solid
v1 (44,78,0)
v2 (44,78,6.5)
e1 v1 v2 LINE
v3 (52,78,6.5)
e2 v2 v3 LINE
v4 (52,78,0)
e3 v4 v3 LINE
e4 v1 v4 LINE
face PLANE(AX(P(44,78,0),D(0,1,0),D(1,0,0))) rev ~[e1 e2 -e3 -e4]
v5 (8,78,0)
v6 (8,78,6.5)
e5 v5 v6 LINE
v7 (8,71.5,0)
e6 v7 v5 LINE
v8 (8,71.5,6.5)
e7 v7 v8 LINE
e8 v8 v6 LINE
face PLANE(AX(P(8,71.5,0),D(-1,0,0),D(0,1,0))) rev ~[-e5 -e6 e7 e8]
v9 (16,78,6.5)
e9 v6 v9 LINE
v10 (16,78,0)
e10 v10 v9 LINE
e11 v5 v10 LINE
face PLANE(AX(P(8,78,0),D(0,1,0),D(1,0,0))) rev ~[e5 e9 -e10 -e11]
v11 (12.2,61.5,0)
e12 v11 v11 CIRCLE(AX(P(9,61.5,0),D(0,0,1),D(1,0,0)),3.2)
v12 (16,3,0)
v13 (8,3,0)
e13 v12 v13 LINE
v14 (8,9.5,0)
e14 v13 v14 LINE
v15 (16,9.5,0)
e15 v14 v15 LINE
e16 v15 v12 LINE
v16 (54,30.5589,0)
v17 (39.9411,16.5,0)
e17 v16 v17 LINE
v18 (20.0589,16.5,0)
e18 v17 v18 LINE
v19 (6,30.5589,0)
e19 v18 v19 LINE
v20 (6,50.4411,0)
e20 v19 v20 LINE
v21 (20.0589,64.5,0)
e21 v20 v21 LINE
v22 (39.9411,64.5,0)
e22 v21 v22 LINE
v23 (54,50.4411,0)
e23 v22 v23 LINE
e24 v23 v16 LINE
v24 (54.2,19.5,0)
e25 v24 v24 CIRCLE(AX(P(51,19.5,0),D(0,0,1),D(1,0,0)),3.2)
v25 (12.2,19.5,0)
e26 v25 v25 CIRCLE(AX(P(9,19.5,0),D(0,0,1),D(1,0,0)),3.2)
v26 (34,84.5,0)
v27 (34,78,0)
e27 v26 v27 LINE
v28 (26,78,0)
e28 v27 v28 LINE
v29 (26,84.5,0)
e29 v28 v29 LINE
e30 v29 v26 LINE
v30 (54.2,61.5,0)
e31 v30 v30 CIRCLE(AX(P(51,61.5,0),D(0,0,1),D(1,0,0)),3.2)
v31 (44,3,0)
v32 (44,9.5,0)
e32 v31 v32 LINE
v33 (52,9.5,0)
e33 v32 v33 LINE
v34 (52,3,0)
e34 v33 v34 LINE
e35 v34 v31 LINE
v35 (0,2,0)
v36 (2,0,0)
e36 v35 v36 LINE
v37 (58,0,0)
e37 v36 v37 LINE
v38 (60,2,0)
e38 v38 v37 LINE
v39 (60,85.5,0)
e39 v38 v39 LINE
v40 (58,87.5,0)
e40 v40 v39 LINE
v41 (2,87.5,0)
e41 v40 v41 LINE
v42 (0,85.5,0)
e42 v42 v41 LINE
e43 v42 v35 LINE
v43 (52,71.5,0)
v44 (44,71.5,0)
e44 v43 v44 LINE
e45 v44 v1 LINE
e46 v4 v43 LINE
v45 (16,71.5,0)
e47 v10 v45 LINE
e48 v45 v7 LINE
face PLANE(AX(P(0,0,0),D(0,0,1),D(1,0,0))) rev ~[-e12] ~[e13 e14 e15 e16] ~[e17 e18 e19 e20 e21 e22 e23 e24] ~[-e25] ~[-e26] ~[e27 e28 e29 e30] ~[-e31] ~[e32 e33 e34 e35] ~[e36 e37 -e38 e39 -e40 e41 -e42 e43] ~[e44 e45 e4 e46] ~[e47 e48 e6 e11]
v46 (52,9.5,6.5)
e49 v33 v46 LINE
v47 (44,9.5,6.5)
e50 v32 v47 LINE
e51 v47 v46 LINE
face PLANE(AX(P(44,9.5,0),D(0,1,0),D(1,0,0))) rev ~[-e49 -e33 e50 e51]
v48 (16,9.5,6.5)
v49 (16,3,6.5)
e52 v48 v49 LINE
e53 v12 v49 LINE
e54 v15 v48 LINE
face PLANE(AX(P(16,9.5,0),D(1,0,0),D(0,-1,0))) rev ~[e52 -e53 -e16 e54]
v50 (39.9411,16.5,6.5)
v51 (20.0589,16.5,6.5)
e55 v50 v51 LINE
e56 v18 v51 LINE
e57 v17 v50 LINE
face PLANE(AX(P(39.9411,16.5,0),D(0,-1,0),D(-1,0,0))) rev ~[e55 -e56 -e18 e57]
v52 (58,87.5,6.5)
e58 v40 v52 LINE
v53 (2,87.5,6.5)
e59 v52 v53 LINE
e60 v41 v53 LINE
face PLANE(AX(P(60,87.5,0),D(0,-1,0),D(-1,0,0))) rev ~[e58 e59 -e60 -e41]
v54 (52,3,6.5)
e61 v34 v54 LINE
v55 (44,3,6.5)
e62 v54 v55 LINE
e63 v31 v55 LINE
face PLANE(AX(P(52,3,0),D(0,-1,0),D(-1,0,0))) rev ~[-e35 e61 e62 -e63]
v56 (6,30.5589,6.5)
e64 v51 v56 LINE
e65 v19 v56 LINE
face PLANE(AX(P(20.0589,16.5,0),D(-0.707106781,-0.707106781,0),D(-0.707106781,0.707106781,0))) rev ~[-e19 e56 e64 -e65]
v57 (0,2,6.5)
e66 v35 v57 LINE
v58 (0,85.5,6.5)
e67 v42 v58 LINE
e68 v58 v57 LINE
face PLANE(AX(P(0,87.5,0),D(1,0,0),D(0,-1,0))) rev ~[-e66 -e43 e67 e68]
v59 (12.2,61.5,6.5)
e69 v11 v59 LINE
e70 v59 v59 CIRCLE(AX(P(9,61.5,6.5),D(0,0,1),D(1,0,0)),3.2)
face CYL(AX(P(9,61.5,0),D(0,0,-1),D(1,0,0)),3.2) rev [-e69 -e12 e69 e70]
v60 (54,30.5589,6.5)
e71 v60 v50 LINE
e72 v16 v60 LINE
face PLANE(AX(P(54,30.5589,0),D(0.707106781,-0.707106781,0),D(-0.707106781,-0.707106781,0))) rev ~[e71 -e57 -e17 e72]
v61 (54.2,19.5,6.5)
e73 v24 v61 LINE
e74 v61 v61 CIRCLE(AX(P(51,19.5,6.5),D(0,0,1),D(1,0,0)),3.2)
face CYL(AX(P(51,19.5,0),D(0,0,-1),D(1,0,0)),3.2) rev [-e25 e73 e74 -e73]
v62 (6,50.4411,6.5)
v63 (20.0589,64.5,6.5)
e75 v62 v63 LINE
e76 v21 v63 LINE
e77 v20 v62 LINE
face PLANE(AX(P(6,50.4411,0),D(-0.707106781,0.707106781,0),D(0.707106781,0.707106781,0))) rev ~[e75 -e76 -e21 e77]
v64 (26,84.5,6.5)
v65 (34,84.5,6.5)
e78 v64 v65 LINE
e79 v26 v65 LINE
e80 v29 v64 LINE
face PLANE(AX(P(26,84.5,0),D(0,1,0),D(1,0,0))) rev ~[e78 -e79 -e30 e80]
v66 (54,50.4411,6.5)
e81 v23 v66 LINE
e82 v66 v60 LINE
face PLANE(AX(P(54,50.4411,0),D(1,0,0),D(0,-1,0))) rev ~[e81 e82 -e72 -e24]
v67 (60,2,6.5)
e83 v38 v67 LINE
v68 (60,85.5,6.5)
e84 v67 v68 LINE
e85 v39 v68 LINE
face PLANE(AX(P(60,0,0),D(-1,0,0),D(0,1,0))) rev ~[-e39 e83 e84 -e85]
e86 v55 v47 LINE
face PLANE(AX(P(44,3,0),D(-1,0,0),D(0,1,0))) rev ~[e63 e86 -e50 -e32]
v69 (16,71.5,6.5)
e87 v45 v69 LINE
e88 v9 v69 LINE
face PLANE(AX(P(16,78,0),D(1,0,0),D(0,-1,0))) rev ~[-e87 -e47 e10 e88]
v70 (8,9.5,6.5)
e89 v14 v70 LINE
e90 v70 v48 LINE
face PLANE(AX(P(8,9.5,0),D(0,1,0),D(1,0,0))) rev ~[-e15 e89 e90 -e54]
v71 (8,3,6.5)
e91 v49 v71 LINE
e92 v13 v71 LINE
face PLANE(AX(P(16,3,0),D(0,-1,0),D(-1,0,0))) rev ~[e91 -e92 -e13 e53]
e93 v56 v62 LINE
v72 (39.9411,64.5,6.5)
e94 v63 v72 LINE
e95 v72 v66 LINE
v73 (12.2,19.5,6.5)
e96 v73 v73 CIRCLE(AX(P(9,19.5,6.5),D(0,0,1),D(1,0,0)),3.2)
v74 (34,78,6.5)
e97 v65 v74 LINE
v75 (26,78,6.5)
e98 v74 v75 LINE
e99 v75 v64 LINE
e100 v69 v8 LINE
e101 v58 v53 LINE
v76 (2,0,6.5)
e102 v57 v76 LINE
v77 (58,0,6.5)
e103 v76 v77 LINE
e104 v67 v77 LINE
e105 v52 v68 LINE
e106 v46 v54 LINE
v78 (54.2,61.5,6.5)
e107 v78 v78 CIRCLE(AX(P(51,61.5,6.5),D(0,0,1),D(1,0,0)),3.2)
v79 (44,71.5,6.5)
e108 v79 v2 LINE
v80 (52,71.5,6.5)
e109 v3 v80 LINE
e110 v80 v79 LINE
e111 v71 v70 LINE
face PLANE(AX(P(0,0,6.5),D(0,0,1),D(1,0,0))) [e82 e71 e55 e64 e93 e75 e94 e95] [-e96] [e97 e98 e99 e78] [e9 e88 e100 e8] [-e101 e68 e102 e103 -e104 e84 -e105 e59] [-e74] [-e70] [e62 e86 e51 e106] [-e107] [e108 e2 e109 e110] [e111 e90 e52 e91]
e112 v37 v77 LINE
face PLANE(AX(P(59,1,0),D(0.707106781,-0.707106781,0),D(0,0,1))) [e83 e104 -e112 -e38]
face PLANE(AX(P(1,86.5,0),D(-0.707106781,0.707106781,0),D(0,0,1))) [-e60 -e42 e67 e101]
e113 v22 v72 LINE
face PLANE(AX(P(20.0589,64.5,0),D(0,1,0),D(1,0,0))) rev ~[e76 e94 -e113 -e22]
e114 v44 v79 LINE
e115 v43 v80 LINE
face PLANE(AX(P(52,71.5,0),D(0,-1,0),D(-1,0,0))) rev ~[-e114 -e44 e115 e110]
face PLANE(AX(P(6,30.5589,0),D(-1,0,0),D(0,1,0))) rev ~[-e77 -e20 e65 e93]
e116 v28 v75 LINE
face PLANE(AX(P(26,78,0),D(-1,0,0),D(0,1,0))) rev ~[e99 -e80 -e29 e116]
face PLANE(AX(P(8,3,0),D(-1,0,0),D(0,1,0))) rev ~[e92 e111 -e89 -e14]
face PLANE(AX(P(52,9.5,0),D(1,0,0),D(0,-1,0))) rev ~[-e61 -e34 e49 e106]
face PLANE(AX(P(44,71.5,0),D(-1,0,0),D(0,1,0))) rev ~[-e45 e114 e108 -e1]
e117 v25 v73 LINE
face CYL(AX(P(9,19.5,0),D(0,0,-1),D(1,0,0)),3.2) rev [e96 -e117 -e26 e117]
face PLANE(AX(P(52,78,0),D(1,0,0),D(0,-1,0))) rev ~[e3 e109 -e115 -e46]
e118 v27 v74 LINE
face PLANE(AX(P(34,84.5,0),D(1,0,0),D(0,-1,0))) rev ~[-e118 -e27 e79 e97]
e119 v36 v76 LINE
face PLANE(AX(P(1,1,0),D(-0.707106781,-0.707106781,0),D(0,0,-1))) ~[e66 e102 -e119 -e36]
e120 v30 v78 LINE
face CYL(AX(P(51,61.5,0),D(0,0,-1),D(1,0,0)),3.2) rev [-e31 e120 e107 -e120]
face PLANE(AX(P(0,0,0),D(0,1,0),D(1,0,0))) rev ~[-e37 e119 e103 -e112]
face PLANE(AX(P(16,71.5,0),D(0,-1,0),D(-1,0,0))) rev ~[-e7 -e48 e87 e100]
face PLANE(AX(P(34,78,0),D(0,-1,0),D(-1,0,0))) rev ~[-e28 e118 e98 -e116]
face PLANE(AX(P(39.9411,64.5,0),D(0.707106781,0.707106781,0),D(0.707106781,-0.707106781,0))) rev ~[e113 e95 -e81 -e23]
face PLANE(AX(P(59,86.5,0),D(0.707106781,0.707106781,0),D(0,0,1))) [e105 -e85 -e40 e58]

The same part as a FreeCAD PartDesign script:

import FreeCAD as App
import Part
import Sketcher


def edges_at(feature, points):
    """Names of the edges that pass closest to the given points."""
    edges = feature.Shape.Edges
    near = lambda p: min(range(len(edges)), key=lambda i: edges[i].distToShape(Part.Vertex(*p))[0])
    return sorted({f"Edge{near(p) + 1}" for p in points})

doc = App.newDocument("Part")
body = doc.addObject("PartDesign::Body", "Body")

sketch1 = body.newObject("Sketcher::SketchObject", "Sketch")
sketch1.AttachmentSupport = (doc.getObject("XY_Plane"), [""])
sketch1.MapMode = "FlatFace"
sketch1.addGeometry(Part.LineSegment(App.Vector(0, 87.5, 0), App.Vector(0, 0, 0)), False)
sketch1.addGeometry(Part.LineSegment(App.Vector(0, 0, 0), App.Vector(60, 0, 0)), False)
sketch1.addGeometry(Part.LineSegment(App.Vector(60, 0, 0), App.Vector(60, 87.5, 0)), False)
sketch1.addGeometry(Part.LineSegment(App.Vector(60, 87.5, 0), App.Vector(0, 87.5, 0)), False)
sketch1.addGeometry(Part.LineSegment(App.Vector(8, 3, 0), App.Vector(8, 9.5, 0)), False)
sketch1.addGeometry(Part.LineSegment(App.Vector(8, 9.5, 0), App.Vector(16, 9.5, 0)), False)
sketch1.addGeometry(Part.LineSegment(App.Vector(16, 9.5, 0), App.Vector(16, 3, 0)), False)
sketch1.addGeometry(Part.LineSegment(App.Vector(16, 3, 0), App.Vector(8, 3, 0)), False)
sketch1.addGeometry(Part.Circle(App.Vector(9, 19.5, 0), App.Vector(0, 0, 1), 3.2), False)
sketch1.addGeometry(Part.LineSegment(App.Vector(44, 3, 0), App.Vector(44, 9.5, 0)), False)
sketch1.addGeometry(Part.LineSegment(App.Vector(44, 9.5, 0), App.Vector(52, 9.5, 0)), False)
sketch1.addGeometry(Part.LineSegment(App.Vector(52, 9.5, 0), App.Vector(52, 3, 0)), False)
sketch1.addGeometry(Part.LineSegment(App.Vector(52, 3, 0), App.Vector(44, 3, 0)), False)
sketch1.addGeometry(Part.Circle(App.Vector(51, 19.5, 0), App.Vector(0, 0, 1), 3.2), False)
sketch1.addGeometry(Part.LineSegment(App.Vector(54, 50.4, 0), App.Vector(54, 30.6, 0)), False)
sketch1.addGeometry(Part.LineSegment(App.Vector(54, 30.6, 0), App.Vector(39.9, 16.5, 0)), False)
sketch1.addGeometry(Part.LineSegment(App.Vector(39.9, 16.5, 0), App.Vector(20.1, 16.5, 0)), False)
sketch1.addGeometry(Part.LineSegment(App.Vector(20.1, 16.5, 0), App.Vector(6, 30.6, 0)), False)
sketch1.addGeometry(Part.LineSegment(App.Vector(6, 30.6, 0), App.Vector(6, 50.4, 0)), False)
sketch1.addGeometry(Part.LineSegment(App.Vector(6, 50.4, 0), App.Vector(20.1, 64.5, 0)), False)
sketch1.addGeometry(Part.LineSegment(App.Vector(20.1, 64.5, 0), App.Vector(39.9, 64.5, 0)), False)
sketch1.addGeometry(Part.LineSegment(App.Vector(39.9, 64.5, 0), App.Vector(54, 50.4, 0)), False)
sketch1.addGeometry(Part.Circle(App.Vector(9, 61.5, 0), App.Vector(0, 0, 1), 3.2), False)
sketch1.addGeometry(Part.LineSegment(App.Vector(8, 71.5, 0), App.Vector(8, 78, 0)), False)
sketch1.addGeometry(Part.LineSegment(App.Vector(8, 78, 0), App.Vector(16, 78, 0)), False)
sketch1.addGeometry(Part.LineSegment(App.Vector(16, 78, 0), App.Vector(16, 71.5, 0)), False)
sketch1.addGeometry(Part.LineSegment(App.Vector(16, 71.5, 0), App.Vector(8, 71.5, 0)), False)
sketch1.addGeometry(Part.Circle(App.Vector(51, 61.5, 0), App.Vector(0, 0, 1), 3.2), False)
sketch1.addGeometry(Part.LineSegment(App.Vector(26, 78, 0), App.Vector(26, 84.5, 0)), False)
sketch1.addGeometry(Part.LineSegment(App.Vector(26, 84.5, 0), App.Vector(34, 84.5, 0)), False)
sketch1.addGeometry(Part.LineSegment(App.Vector(34, 84.5, 0), App.Vector(34, 78, 0)), False)
sketch1.addGeometry(Part.LineSegment(App.Vector(34, 78, 0), App.Vector(26, 78, 0)), False)
sketch1.addGeometry(Part.LineSegment(App.Vector(44, 71.5, 0), App.Vector(44, 78, 0)), False)
sketch1.addGeometry(Part.LineSegment(App.Vector(44, 78, 0), App.Vector(52, 78, 0)), False)
sketch1.addGeometry(Part.LineSegment(App.Vector(52, 78, 0), App.Vector(52, 71.5, 0)), False)
sketch1.addGeometry(Part.LineSegment(App.Vector(52, 71.5, 0), App.Vector(44, 71.5, 0)), False)
sketch1.addConstraint(Sketcher.Constraint("Coincident", 0, 2, 1, 1))
sketch1.addConstraint(Sketcher.Constraint("Coincident", 1, 2, 2, 1))
sketch1.addConstraint(Sketcher.Constraint("Coincident", 2, 2, 3, 1))
sketch1.addConstraint(Sketcher.Constraint("Coincident", 3, 2, 0, 1))
sketch1.addConstraint(Sketcher.Constraint("Coincident", 4, 2, 5, 1))
sketch1.addConstraint(Sketcher.Constraint("Coincident", 5, 2, 6, 1))
sketch1.addConstraint(Sketcher.Constraint("Coincident", 6, 2, 7, 1))
sketch1.addConstraint(Sketcher.Constraint("Coincident", 7, 2, 4, 1))
sketch1.addConstraint(Sketcher.Constraint("Coincident", 9, 2, 10, 1))
sketch1.addConstraint(Sketcher.Constraint("Coincident", 10, 2, 11, 1))
sketch1.addConstraint(Sketcher.Constraint("Coincident", 11, 2, 12, 1))
sketch1.addConstraint(Sketcher.Constraint("Coincident", 12, 2, 9, 1))
sketch1.addConstraint(Sketcher.Constraint("Coincident", 14, 2, 15, 1))
sketch1.addConstraint(Sketcher.Constraint("Coincident", 15, 2, 16, 1))
sketch1.addConstraint(Sketcher.Constraint("Coincident", 16, 2, 17, 1))
sketch1.addConstraint(Sketcher.Constraint("Coincident", 17, 2, 18, 1))
sketch1.addConstraint(Sketcher.Constraint("Coincident", 18, 2, 19, 1))
sketch1.addConstraint(Sketcher.Constraint("Coincident", 19, 2, 20, 1))
sketch1.addConstraint(Sketcher.Constraint("Coincident", 20, 2, 21, 1))
sketch1.addConstraint(Sketcher.Constraint("Coincident", 21, 2, 14, 1))
sketch1.addConstraint(Sketcher.Constraint("Coincident", 23, 2, 24, 1))
sketch1.addConstraint(Sketcher.Constraint("Coincident", 24, 2, 25, 1))
sketch1.addConstraint(Sketcher.Constraint("Coincident", 25, 2, 26, 1))
sketch1.addConstraint(Sketcher.Constraint("Coincident", 26, 2, 23, 1))
sketch1.addConstraint(Sketcher.Constraint("Coincident", 28, 2, 29, 1))
sketch1.addConstraint(Sketcher.Constraint("Coincident", 29, 2, 30, 1))
sketch1.addConstraint(Sketcher.Constraint("Coincident", 30, 2, 31, 1))
sketch1.addConstraint(Sketcher.Constraint("Coincident", 31, 2, 28, 1))
sketch1.addConstraint(Sketcher.Constraint("Coincident", 32, 2, 33, 1))
sketch1.addConstraint(Sketcher.Constraint("Coincident", 33, 2, 34, 1))
sketch1.addConstraint(Sketcher.Constraint("Coincident", 34, 2, 35, 1))
sketch1.addConstraint(Sketcher.Constraint("Coincident", 35, 2, 32, 1))
sketch1.addConstraint(Sketcher.Constraint("Vertical", 0))
sketch1.addConstraint(Sketcher.Constraint("Horizontal", 1))
sketch1.addConstraint(Sketcher.Constraint("Vertical", 2))
sketch1.addConstraint(Sketcher.Constraint("Horizontal", 3))
sketch1.addConstraint(Sketcher.Constraint("Vertical", 4))
sketch1.addConstraint(Sketcher.Constraint("Horizontal", 5))
sketch1.addConstraint(Sketcher.Constraint("Vertical", 6))
sketch1.addConstraint(Sketcher.Constraint("Horizontal", 7))
sketch1.addConstraint(Sketcher.Constraint("Vertical", 9))
sketch1.addConstraint(Sketcher.Constraint("Horizontal", 10))
sketch1.addConstraint(Sketcher.Constraint("Vertical", 11))
sketch1.addConstraint(Sketcher.Constraint("Horizontal", 12))
sketch1.addConstraint(Sketcher.Constraint("Vertical", 14))
sketch1.addConstraint(Sketcher.Constraint("Horizontal", 16))
sketch1.addConstraint(Sketcher.Constraint("Vertical", 18))
sketch1.addConstraint(Sketcher.Constraint("Horizontal", 20))
sketch1.addConstraint(Sketcher.Constraint("Vertical", 23))
sketch1.addConstraint(Sketcher.Constraint("Horizontal", 24))
sketch1.addConstraint(Sketcher.Constraint("Vertical", 25))
sketch1.addConstraint(Sketcher.Constraint("Horizontal", 26))
sketch1.addConstraint(Sketcher.Constraint("Vertical", 28))
sketch1.addConstraint(Sketcher.Constraint("Horizontal", 29))
sketch1.addConstraint(Sketcher.Constraint("Vertical", 30))
sketch1.addConstraint(Sketcher.Constraint("Horizontal", 31))
sketch1.addConstraint(Sketcher.Constraint("Vertical", 32))
sketch1.addConstraint(Sketcher.Constraint("Horizontal", 33))
sketch1.addConstraint(Sketcher.Constraint("Vertical", 34))
sketch1.addConstraint(Sketcher.Constraint("Horizontal", 35))
sketch1.addConstraint(Sketcher.Constraint("Coincident", 0, 2, -1, 1))
sketch1.addConstraint(Sketcher.Constraint("Equal", 8, 13))
sketch1.addConstraint(Sketcher.Constraint("Equal", 13, 22))
sketch1.addConstraint(Sketcher.Constraint("Equal", 22, 27))
sketch1.addConstraint(Sketcher.Constraint("Perpendicular", 15, 17))
sketch1.addConstraint(Sketcher.Constraint("Perpendicular", 17, 19))
sketch1.addConstraint(Sketcher.Constraint("Perpendicular", 19, 21))
sketch1.addConstraint(Sketcher.Constraint("Horizontal", 8, 3, 13, 3))
sketch1.addConstraint(Sketcher.Constraint("Horizontal", 22, 3, 27, 3))
sketch1.addConstraint(Sketcher.Constraint("Horizontal", 5, 2, 9, 2))
sketch1.addConstraint(Sketcher.Constraint("Horizontal", 7, 2, 11, 2))
sketch1.addConstraint(Sketcher.Constraint("Horizontal", 14, 2, 17, 2))
sketch1.addConstraint(Sketcher.Constraint("Horizontal", 18, 2, 21, 2))
sketch1.addConstraint(Sketcher.Constraint("Horizontal", 24, 2, 30, 2))
sketch1.addConstraint(Sketcher.Constraint("Horizontal", 31, 2, 32, 2))
sketch1.addConstraint(Sketcher.Constraint("Horizontal", 26, 2, 34, 2))
sketch1.addConstraint(Sketcher.Constraint("Vertical", 8, 3, 22, 3))
sketch1.addConstraint(Sketcher.Constraint("Vertical", 13, 3, 27, 3))
sketch1.addConstraint(Sketcher.Constraint("Vertical", 16, 2, 19, 2))
sketch1.addConstraint(Sketcher.Constraint("Vertical", 15, 2, 20, 2))
sketch1.addConstraint(Sketcher.Constraint("Vertical", 7, 2, 23, 2))
sketch1.addConstraint(Sketcher.Constraint("Vertical", 6, 2, 24, 2))
sketch1.addConstraint(Sketcher.Constraint("Vertical", 12, 2, 32, 2))
sketch1.addConstraint(Sketcher.Constraint("Vertical", 11, 2, 33, 2))
sketch1.addConstraint(Sketcher.Constraint("Equal", 7, 10))
sketch1.addConstraint(Sketcher.Constraint("Equal", 26, 29))
sketch1.addConstraint(Sketcher.Constraint("Equal", 20, 14))
sketch1.addConstraint(Sketcher.Constraint("Equal", 11, 23))
sketch1.addConstraint(Sketcher.Constraint("Equal", 25, 28))
sketch1.addConstraint(Sketcher.Constraint("Diameter", 8, 6.4))
sketch1.addConstraint(Sketcher.Constraint("DistanceX", 5, 1, 5, 2, 8.0))
sketch1.addConstraint(Sketcher.Constraint("DistanceY", 0, 2, 0, 1, 87.5))
sketch1.addConstraint(Sketcher.Constraint("DistanceY", 4, 1, 4, 2, 6.5))
sketch1.addConstraint(Sketcher.Constraint("DistanceX", -1, 1, 4, 2, 8.0))
sketch1.addConstraint(Sketcher.Constraint("DistanceY", -1, 1, 6, 2, 3.0))
sketch1.addConstraint(Sketcher.Constraint("DistanceX", -1, 1, 17, 2, 6.0))
sketch1.addConstraint(Sketcher.Constraint("DistanceX", 8, 3, 13, 3, 42.0))
sketch1.addConstraint(Sketcher.Constraint("DistanceY", 8, 3, 22, 3, 42.0))
sketch1.addConstraint(Sketcher.Constraint("DistanceX", 10, 2, 1, 2, 8.0))
sketch1.addConstraint(Sketcher.Constraint("DistanceX", 13, 3, 14, 2, 3.0))
sketch1.addConstraint(Sketcher.Constraint("DistanceY", 15, 2, 13, 3, 3.0))
sketch1.addConstraint(Sketcher.Constraint("DistanceX", 17, 2, 8, 3, 3.0))
sketch1.addConstraint(Sketcher.Constraint("DistanceX", 1, 1, 1, 2, 60.0))
sketch1.addConstraint(Sketcher.Constraint("DistanceY", -1, 1, 23, 2, 78.0))
sketch1.addConstraint(Sketcher.Constraint("DistanceX", -1, 1, 28, 2, 26.0))
sketch1.addConstraint(Sketcher.Constraint("DistanceY", 27, 3, 2, 2, 26.0))
sketch1.addConstraint(Sketcher.Constraint("DistanceX", 16, 2, 16, 1, 19.8822))
pad1 = body.newObject("PartDesign::Pad", "Pad")
pad1.Profile = sketch1
pad1.Length = 6.5
doc.recompute()

chamfer = body.newObject("PartDesign::Chamfer", "Chamfer")
chamfer.Base = (pad1, edges_at(pad1, [
    (0, 0, 3.25),
    (60, 0, 3.25),
    (60, 87.5, 3.25),
    (0, 87.5, 3.25),
]))
chamfer.Size = 2

doc.recompute()
